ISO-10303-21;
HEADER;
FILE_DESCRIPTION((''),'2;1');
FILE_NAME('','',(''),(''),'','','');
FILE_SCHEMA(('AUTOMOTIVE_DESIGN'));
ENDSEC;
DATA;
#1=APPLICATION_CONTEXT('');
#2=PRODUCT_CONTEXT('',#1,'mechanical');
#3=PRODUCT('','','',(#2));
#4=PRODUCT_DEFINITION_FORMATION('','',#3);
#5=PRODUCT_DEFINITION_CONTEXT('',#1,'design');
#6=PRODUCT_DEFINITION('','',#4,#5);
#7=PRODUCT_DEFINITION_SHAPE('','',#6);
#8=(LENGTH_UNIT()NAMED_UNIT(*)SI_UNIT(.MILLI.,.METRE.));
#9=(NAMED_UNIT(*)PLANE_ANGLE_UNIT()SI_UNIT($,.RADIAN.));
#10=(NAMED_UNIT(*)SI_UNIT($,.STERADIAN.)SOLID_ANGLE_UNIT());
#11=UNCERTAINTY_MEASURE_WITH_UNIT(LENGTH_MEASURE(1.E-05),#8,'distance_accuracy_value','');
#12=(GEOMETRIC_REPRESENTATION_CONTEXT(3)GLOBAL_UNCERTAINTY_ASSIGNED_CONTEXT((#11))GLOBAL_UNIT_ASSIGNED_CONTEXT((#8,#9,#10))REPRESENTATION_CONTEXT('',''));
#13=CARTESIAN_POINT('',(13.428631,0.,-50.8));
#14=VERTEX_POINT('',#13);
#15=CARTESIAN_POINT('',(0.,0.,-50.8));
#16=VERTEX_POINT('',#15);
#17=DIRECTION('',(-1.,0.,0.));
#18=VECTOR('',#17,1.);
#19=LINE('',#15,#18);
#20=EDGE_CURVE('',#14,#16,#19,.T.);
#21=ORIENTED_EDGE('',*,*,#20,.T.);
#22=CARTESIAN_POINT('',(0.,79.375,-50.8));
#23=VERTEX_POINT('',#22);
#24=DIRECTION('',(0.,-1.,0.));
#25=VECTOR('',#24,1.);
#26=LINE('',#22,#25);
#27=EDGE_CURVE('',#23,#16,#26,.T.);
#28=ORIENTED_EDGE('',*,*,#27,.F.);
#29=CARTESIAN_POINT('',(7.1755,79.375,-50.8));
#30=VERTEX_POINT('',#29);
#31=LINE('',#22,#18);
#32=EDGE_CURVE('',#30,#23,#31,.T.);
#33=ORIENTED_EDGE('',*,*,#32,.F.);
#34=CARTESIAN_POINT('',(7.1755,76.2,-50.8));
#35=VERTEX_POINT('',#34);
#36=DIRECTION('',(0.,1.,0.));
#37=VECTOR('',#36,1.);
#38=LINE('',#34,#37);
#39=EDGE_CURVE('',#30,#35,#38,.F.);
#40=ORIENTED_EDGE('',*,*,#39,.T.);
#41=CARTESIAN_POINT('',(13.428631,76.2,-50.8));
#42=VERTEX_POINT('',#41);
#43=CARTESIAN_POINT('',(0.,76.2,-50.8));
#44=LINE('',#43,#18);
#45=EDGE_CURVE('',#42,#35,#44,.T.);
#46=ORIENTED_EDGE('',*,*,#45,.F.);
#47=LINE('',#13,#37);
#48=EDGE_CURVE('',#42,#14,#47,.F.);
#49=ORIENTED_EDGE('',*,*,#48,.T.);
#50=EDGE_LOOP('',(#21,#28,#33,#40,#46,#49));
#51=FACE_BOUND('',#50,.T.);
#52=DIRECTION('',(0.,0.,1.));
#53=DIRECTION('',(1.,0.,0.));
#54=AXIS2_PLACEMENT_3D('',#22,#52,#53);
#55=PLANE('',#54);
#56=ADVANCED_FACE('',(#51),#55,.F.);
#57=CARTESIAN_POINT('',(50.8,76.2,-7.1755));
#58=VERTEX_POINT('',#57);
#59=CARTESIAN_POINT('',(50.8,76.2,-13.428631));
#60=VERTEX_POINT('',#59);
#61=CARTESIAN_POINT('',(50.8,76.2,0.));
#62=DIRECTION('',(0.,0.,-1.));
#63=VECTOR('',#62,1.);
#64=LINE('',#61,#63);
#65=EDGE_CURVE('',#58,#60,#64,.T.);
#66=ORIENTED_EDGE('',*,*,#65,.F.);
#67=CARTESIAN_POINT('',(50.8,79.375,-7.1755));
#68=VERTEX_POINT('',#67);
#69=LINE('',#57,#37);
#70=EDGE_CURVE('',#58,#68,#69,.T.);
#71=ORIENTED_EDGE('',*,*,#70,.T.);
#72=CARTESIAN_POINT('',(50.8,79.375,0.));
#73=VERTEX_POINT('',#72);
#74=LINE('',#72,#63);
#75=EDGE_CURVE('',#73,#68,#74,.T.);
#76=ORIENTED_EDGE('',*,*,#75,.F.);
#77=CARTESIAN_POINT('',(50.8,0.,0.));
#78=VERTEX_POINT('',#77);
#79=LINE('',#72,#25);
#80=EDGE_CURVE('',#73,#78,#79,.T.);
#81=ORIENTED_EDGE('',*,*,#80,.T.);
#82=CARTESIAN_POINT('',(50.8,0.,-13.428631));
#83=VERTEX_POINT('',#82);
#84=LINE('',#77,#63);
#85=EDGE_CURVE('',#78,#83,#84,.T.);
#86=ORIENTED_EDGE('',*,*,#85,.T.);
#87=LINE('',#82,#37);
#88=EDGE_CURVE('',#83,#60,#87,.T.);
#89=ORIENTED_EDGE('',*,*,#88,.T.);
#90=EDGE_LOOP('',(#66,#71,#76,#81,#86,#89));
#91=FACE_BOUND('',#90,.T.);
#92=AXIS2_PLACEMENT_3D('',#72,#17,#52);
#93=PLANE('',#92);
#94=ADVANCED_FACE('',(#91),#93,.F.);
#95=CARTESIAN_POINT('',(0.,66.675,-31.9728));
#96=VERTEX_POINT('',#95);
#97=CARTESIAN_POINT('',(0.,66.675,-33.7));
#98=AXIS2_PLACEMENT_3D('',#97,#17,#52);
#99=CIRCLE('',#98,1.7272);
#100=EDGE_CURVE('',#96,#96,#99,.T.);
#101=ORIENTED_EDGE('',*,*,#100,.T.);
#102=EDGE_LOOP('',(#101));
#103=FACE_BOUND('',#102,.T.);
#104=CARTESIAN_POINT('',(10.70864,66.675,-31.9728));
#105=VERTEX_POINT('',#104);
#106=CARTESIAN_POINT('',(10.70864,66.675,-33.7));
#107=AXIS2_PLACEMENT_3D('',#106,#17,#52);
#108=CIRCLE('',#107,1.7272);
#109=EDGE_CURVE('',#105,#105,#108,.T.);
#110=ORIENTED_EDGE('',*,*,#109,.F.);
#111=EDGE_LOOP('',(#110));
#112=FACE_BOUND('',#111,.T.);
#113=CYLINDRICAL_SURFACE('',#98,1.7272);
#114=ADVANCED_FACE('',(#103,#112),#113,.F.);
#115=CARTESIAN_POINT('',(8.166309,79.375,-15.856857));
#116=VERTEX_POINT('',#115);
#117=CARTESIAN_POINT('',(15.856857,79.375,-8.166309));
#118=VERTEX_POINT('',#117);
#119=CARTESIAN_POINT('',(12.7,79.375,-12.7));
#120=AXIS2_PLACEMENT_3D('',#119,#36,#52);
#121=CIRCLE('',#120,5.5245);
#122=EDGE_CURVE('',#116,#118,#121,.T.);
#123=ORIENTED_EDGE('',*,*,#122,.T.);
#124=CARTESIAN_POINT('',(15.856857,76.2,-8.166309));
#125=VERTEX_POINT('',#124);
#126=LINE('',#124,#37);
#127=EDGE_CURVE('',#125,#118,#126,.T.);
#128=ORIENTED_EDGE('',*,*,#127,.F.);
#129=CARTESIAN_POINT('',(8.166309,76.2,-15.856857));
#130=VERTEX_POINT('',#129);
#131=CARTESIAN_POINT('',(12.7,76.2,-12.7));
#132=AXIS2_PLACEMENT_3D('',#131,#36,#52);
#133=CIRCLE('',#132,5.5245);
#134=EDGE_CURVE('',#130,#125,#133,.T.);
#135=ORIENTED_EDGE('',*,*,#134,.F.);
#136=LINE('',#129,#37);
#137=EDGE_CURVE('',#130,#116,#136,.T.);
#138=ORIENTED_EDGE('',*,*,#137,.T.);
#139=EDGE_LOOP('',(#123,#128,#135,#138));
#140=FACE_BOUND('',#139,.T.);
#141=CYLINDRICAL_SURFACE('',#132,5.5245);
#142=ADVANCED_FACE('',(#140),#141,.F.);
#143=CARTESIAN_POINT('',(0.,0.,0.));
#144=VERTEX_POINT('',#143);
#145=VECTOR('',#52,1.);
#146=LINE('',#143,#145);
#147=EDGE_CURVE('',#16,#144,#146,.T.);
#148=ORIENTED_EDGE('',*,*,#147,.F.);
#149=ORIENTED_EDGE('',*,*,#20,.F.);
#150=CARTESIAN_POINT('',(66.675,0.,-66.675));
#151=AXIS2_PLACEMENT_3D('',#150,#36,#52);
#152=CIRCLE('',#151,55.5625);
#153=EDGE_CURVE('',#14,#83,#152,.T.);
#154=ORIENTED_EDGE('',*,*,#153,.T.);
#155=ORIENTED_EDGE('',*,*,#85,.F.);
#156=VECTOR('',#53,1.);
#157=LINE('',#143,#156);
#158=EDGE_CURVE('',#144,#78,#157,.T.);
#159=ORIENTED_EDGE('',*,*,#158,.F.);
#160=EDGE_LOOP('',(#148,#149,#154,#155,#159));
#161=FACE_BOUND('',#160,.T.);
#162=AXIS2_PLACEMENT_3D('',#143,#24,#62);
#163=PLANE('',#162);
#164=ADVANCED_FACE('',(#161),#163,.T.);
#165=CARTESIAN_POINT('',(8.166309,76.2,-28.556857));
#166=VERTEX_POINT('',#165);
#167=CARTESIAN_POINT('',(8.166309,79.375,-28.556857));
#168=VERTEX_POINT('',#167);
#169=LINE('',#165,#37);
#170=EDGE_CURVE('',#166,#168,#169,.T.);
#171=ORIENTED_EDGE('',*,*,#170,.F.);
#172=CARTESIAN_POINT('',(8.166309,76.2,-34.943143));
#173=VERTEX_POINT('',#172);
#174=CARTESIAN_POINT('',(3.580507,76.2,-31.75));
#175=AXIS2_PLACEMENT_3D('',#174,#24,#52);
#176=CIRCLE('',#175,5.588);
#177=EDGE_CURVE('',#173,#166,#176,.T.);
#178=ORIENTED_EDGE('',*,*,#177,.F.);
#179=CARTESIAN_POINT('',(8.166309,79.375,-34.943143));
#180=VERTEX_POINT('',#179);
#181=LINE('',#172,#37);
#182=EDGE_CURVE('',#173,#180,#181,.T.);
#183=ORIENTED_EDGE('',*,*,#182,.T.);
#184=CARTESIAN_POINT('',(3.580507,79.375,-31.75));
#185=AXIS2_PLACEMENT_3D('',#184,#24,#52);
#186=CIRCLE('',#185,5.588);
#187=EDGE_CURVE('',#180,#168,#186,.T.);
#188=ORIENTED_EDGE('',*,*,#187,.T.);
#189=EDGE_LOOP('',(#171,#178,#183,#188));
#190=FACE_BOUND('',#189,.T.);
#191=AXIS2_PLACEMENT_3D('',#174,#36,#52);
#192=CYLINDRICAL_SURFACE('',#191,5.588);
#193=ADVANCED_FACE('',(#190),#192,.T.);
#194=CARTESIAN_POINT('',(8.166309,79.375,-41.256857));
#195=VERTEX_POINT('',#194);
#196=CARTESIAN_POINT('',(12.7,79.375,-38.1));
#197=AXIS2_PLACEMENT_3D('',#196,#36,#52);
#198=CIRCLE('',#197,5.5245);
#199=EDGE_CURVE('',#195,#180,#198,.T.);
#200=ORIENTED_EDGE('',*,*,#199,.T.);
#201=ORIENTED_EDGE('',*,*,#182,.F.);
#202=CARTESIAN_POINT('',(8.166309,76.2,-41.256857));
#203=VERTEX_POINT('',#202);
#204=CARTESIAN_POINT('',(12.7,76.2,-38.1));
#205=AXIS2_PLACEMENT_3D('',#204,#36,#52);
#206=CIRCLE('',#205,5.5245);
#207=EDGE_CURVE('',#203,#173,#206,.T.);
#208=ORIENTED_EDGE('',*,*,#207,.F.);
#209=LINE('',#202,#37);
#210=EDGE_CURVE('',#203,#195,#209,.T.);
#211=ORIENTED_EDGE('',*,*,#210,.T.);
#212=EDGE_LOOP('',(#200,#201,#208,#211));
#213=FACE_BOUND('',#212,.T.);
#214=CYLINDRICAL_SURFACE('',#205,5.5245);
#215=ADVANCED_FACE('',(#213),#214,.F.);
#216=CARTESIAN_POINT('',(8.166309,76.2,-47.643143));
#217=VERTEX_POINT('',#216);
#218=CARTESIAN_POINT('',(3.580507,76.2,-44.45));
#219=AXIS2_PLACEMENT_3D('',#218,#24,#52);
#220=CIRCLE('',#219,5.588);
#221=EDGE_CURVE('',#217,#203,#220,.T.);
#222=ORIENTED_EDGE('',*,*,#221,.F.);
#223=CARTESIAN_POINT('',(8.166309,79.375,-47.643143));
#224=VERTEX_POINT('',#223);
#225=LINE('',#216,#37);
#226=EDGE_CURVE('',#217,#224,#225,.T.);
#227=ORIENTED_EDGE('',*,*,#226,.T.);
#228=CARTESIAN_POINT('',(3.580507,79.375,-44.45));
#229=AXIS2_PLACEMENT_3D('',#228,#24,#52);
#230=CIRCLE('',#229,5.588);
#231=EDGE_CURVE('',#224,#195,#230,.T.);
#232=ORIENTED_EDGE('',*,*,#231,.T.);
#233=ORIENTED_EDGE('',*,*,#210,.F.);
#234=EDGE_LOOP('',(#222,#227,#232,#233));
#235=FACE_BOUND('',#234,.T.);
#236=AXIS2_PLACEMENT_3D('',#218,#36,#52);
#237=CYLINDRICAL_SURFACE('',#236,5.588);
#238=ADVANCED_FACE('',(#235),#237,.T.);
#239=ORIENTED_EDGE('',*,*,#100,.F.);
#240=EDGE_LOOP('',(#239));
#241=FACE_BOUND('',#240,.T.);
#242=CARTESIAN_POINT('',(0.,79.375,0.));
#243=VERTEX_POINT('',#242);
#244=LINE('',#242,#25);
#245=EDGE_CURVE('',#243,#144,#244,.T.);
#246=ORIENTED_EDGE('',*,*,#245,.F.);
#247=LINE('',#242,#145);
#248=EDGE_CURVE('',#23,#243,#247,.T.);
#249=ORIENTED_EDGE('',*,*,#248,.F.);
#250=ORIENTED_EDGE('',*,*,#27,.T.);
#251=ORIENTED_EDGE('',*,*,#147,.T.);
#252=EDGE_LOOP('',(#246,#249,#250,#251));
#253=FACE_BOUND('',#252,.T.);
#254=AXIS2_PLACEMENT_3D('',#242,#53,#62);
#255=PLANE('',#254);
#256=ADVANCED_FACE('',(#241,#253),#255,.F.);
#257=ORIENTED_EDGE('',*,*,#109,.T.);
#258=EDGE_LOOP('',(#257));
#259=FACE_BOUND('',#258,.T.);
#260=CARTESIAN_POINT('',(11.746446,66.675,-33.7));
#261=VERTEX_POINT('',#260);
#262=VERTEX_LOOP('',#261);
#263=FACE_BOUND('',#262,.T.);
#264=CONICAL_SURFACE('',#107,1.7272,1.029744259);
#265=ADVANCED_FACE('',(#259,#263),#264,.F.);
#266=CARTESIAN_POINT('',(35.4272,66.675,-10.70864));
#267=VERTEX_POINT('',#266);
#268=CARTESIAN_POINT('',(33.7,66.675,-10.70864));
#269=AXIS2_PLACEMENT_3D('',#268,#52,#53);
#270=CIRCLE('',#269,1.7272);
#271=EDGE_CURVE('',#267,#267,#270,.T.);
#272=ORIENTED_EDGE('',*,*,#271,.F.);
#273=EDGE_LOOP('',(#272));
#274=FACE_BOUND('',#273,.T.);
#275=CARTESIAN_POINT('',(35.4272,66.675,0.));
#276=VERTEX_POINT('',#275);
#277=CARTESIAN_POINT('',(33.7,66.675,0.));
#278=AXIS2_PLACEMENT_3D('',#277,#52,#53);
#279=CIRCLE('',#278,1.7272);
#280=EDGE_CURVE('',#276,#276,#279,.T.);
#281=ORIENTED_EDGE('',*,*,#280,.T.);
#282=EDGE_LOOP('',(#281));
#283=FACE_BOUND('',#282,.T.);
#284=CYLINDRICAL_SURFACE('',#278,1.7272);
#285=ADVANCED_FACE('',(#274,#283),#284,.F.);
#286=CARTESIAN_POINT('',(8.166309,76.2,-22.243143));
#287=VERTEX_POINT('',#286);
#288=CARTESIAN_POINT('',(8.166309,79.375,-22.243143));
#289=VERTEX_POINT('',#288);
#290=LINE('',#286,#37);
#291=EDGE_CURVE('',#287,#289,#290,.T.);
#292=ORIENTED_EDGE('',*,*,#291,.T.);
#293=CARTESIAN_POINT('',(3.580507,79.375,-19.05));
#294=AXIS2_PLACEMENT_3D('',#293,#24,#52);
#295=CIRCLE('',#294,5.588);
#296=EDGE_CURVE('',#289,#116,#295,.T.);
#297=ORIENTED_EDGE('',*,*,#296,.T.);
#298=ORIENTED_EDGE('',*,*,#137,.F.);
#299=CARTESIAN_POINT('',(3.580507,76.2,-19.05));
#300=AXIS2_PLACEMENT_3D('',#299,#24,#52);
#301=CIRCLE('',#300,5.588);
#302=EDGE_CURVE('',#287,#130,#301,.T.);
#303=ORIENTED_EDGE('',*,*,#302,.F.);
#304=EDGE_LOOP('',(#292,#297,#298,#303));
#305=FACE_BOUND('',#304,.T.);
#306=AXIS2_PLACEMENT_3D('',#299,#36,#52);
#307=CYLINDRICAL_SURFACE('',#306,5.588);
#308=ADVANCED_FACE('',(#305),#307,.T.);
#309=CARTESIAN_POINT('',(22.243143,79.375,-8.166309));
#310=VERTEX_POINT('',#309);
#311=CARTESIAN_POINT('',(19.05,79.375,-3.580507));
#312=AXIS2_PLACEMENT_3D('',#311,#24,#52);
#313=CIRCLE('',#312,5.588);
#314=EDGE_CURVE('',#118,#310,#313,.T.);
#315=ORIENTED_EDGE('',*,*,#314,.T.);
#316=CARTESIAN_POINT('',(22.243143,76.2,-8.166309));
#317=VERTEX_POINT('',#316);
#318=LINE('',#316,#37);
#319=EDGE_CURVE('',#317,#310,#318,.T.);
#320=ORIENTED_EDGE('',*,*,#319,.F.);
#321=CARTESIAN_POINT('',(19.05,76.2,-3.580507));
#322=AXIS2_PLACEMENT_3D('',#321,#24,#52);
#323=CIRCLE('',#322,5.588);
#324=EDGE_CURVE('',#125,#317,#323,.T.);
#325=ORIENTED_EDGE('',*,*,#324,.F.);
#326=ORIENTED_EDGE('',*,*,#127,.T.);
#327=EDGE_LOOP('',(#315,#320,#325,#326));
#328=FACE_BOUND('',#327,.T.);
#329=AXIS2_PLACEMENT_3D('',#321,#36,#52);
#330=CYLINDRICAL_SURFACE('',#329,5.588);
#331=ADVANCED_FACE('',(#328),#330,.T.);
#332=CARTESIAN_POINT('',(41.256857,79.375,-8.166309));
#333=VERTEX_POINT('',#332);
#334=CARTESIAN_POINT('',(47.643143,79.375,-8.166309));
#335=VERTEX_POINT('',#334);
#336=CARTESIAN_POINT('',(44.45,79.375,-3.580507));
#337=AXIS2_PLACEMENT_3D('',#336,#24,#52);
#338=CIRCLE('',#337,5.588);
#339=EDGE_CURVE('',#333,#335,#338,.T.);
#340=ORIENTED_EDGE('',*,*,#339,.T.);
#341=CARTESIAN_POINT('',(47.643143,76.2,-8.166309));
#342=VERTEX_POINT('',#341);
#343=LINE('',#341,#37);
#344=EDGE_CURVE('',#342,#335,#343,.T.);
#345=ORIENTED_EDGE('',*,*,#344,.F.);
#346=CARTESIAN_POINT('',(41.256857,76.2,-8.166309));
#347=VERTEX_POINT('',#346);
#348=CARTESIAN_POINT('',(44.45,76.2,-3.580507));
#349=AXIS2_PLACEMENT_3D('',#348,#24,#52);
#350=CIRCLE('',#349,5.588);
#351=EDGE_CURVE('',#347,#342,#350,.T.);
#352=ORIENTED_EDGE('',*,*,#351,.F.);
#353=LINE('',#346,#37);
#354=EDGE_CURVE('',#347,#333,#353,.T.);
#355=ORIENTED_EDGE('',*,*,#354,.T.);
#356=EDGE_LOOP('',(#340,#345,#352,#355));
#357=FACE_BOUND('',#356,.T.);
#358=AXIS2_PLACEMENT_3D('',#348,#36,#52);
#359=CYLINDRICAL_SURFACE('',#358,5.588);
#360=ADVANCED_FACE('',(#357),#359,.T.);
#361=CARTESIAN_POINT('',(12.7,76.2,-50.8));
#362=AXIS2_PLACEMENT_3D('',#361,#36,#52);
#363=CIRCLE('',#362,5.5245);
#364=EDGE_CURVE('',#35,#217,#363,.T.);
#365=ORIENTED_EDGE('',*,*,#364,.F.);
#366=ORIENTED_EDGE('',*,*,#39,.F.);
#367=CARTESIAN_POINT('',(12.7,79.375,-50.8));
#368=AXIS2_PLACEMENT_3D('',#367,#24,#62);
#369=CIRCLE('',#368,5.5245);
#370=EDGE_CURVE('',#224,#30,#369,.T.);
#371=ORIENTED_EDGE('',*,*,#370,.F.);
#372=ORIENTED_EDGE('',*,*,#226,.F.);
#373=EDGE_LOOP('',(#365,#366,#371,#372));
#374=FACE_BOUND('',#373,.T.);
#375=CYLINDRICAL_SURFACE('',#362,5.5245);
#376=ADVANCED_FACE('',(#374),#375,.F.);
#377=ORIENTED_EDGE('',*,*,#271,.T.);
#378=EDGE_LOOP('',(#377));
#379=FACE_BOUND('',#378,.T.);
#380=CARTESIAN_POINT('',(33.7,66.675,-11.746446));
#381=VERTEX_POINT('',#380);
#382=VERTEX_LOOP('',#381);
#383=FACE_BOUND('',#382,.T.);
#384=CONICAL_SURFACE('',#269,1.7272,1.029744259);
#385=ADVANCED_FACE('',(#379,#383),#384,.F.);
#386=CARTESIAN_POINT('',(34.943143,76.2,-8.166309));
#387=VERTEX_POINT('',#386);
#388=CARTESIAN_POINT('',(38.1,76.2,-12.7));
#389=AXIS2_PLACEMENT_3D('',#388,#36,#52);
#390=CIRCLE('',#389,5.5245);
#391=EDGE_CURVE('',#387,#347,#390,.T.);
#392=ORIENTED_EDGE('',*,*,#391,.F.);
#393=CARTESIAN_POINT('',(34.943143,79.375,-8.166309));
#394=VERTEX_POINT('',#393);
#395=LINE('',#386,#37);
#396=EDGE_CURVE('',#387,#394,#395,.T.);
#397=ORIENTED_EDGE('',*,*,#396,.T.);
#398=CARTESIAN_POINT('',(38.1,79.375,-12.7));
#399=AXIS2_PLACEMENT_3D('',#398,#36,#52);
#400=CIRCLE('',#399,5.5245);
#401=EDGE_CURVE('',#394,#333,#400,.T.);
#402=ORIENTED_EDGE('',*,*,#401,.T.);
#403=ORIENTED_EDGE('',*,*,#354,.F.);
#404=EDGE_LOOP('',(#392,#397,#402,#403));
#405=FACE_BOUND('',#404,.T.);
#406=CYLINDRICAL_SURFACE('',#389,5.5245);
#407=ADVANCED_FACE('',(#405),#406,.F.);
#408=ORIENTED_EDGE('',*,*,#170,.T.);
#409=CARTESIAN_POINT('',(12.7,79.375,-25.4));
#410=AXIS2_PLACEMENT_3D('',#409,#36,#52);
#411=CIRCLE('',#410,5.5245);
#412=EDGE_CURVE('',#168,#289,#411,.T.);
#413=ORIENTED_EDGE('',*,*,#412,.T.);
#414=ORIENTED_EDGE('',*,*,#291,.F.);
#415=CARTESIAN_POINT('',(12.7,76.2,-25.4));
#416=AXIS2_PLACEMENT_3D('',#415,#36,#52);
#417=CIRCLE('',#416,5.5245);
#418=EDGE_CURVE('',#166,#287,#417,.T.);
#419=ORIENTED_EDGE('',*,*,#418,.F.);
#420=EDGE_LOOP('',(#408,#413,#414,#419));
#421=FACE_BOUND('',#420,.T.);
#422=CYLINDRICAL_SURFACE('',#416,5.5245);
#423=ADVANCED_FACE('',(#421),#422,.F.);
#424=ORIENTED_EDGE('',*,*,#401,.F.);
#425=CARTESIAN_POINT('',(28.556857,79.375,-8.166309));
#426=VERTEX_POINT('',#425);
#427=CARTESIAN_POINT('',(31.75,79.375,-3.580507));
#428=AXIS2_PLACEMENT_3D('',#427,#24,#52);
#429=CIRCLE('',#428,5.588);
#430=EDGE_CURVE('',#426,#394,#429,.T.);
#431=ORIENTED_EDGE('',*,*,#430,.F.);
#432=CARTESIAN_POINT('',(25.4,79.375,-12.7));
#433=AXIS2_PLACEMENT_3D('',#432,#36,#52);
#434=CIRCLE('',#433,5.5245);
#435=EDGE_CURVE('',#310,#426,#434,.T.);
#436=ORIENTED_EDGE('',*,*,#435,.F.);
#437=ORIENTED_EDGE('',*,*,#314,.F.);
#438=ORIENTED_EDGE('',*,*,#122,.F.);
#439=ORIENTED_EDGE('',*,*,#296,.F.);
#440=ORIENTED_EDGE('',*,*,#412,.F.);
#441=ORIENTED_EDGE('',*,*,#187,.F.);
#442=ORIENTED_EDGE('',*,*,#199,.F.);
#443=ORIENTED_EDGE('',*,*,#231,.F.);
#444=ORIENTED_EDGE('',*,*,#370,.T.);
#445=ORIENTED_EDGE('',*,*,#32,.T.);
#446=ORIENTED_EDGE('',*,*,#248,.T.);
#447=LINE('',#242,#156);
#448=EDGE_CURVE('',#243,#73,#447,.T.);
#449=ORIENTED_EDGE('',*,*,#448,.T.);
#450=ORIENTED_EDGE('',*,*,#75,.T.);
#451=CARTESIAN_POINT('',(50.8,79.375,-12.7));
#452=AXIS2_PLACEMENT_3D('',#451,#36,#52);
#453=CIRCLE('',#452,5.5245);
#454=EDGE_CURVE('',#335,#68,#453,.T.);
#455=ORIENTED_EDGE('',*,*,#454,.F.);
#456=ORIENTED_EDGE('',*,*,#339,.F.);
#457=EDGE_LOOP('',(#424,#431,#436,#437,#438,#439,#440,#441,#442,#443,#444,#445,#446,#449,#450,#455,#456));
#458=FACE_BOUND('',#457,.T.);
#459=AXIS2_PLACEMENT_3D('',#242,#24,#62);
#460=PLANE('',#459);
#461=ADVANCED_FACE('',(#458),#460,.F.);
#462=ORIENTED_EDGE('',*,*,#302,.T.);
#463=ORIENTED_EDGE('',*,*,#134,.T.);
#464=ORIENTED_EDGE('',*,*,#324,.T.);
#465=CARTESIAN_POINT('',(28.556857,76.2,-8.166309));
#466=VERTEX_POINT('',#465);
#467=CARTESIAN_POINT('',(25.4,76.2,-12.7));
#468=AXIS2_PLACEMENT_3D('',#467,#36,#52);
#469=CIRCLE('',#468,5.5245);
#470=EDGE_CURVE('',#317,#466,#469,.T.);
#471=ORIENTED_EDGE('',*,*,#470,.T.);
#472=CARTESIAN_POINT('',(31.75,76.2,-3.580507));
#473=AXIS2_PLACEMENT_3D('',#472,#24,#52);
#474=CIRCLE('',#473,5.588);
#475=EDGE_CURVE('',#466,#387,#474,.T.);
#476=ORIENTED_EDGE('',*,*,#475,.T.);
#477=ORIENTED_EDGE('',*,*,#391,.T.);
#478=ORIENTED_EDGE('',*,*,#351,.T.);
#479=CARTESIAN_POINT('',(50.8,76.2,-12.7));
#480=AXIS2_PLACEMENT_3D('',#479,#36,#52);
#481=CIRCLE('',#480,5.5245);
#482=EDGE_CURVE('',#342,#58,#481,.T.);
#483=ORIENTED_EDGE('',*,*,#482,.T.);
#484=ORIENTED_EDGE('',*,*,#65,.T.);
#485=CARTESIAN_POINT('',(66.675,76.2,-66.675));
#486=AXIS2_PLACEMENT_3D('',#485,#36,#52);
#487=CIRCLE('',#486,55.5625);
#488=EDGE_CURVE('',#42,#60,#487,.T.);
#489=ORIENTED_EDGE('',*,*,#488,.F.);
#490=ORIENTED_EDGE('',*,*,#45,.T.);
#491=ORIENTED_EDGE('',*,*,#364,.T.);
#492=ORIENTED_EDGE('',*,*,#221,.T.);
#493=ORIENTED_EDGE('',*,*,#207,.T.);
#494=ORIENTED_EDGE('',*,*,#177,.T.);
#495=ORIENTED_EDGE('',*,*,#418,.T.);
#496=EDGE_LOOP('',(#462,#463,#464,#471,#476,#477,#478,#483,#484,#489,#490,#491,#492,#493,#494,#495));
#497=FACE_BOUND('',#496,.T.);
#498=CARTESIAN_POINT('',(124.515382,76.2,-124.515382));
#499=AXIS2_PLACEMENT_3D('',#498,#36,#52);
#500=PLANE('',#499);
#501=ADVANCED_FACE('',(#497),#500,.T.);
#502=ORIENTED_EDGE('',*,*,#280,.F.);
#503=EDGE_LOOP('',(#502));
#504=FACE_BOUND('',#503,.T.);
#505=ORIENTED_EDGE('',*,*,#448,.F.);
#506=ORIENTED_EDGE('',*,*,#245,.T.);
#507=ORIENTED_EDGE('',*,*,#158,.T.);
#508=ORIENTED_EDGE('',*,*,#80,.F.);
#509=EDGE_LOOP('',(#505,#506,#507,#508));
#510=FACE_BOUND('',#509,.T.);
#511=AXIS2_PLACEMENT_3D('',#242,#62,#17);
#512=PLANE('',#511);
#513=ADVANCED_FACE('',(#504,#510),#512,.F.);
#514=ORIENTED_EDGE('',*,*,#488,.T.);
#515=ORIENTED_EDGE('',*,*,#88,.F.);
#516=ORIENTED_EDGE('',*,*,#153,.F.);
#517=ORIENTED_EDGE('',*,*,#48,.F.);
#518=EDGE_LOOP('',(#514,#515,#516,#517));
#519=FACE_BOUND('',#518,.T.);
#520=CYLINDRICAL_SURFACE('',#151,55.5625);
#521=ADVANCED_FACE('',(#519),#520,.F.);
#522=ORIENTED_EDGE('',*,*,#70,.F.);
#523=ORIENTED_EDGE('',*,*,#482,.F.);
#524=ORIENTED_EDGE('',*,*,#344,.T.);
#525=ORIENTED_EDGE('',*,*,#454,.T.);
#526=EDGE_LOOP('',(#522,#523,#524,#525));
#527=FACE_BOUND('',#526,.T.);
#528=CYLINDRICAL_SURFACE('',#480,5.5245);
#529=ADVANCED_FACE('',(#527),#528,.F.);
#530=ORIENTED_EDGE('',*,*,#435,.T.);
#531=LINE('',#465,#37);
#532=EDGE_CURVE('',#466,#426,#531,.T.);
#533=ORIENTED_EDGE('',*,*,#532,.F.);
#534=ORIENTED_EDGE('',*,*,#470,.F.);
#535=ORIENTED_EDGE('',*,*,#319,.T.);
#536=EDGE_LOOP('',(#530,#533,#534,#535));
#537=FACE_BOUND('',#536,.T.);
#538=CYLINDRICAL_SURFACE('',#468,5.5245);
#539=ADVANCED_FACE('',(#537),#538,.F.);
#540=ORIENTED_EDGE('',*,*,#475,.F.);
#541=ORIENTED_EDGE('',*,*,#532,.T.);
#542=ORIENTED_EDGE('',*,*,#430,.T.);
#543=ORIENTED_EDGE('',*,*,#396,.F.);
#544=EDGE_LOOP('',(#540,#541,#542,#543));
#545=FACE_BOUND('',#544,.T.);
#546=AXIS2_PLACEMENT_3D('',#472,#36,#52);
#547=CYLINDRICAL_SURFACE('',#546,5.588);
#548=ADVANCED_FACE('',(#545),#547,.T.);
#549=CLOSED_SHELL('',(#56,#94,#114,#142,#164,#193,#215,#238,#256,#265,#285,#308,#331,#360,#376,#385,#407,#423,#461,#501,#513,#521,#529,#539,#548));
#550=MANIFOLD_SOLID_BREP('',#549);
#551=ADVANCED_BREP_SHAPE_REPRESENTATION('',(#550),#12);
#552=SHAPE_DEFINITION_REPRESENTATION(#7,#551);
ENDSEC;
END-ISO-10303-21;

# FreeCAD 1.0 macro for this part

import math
import FreeCAD as App
import Part
import Sketcher
Q = App.Units.Quantity


def add_polygon(sketch, points):
    """Adds a closed chain of lines whose ends are joined by coincident constraints."""
    first, n = sketch.GeometryCount, len(points)
    for a, b in zip(points, points[1:] + points[:1]):
        sketch.addGeometry(Part.LineSegment(App.Vector(*a, 0), App.Vector(*b, 0)), False)
    for i in range(n):
        sketch.addConstraint(Sketcher.Constraint("Coincident", first + i, 2, first + (i + 1) % n, 1))

doc = App.newDocument("Part")
body = doc.addObject("PartDesign::Body", "Body")

# Sketch on XZ plane
sketch1 = doc.addObject("Sketcher::SketchObject", "Sketch")
body.addObject(sketch1)
sketch1.AttachmentSupport = (doc.XZ_Plane, [""])
sketch1.MapMode = "FlatFace"
add_polygon(sketch1, [(0, -51), (0, 0), (51, 0), (51, -51)])  # lines 0-3
sketch1.addConstraint(Sketcher.Constraint("Vertical", 0))
sketch1.addConstraint(Sketcher.Constraint("Horizontal", 1))
sketch1.addConstraint(Sketcher.Constraint("Vertical", 2))
sketch1.addConstraint(Sketcher.Constraint("Horizontal", 3))
sketch1.addConstraint(Sketcher.Constraint("Coincident", 0, 2, -1, 1))
sketch1.addConstraint(Sketcher.Constraint("Equal", 3, 0))
sketch1.addConstraint(Sketcher.Constraint("DistanceX", 1, 1, 1, 2, Q("2 in")))
pad1 = doc.addObject("PartDesign::Pad", "Pad")
body.addObject(pad1)
pad1.Profile = sketch1
pad1.Length = Q("3.125 in")
pad1.Reversed = True

# Sketch on XZ plane
sketch2 = doc.addObject("Sketcher::SketchObject", "Sketch001")
body.addObject(sketch2)
sketch2.AttachmentSupport = (doc.XZ_Plane, [""])
sketch2.MapMode = "FlatFace"
sketch2.AttachmentOffset = App.Placement(App.Vector(0, 0, -3.125 * 25.4), App.Rotation())
sketch2.addGeometry(Part.LineSegment(App.Vector(134.3, -78.6, 0), App.Vector(130, -125, 0)), False)
sketch2.addGeometry(Part.ArcOfCircle(Part.Circle(App.Vector(124.5, -124.5, 0), App.Vector(0, 0, 1), 5.5), math.radians(-78), math.radians(-5)), False)
sketch2.addGeometry(Part.LineSegment(App.Vector(125.6, -129.9, 0), App.Vector(85.3, -138.2, 0)), False)
sketch2.addGeometry(Part.ArcOfCircle(Part.Circle(App.Vector(83.3, -128, 0), App.Vector(0, 0, 1), 10.4), math.radians(-131), math.radians(-78)), False)
sketch2.addGeometry(Part.ArcOfCircle(Part.Circle(App.Vector(56.5, -158.8, 0), App.Vector(0, 0, 1), 30.4), math.radians(49), math.radians(84)), False)
sketch2.addGeometry(Part.ArcOfCircle(Part.Circle(App.Vector(66.7, -66.7, 0), App.Vector(0, 0, 1), 62.3), math.radians(-120), math.radians(-96)), False)
sketch2.addGeometry(Part.ArcOfCircle(Part.Circle(App.Vector(32.7, -125.4, 0), App.Vector(0, 0, 1), 5.6), math.radians(60), math.radians(90)), False)
sketch2.addGeometry(Part.ArcOfCircle(Part.Circle(App.Vector(32.6, -114.3, 0), App.Vector(0, 0, 1), 5.5), math.radians(171), math.radians(270)), False)
sketch2.addGeometry(Part.ArcOfCircle(Part.Circle(App.Vector(19.9, -112.4, 0), App.Vector(0, 0, 1), 7.4), math.radians(-9), math.radians(124)), False)
sketch2.addGeometry(Part.ArcOfCircle(Part.Circle(App.Vector(12.7, -101.6, 0), App.Vector(0, 0, 1), 5.5), math.radians(145), math.radians(304)), False)
sketch2.addGeometry(Part.ArcOfCircle(Part.Circle(App.Vector(3.6, -95.2, 0), App.Vector(0, 0, 1), 5.6), math.radians(-35), math.radians(35)), False)
sketch2.addGeometry(Part.ArcOfCircle(Part.Circle(App.Vector(12.7, -88.9, 0), App.Vector(0, 0, 1), 5.5), math.radians(145), math.radians(215)), False)
sketch2.addGeometry(Part.ArcOfCircle(Part.Circle(App.Vector(3.6, -82.5, 0), App.Vector(0, 0, 1), 5.6), math.radians(-35), math.radians(35)), False)
sketch2.addGeometry(Part.ArcOfCircle(Part.Circle(App.Vector(12.7, -76.2, 0), App.Vector(0, 0, 1), 5.5), math.radians(145), math.radians(215)), False)
sketch2.addGeometry(Part.ArcOfCircle(Part.Circle(App.Vector(3.6, -69.9, 0), App.Vector(0, 0, 1), 5.6), math.radians(-35), math.radians(34)), False)
sketch2.addGeometry(Part.ArcOfCircle(Part.Circle(App.Vector(12.9, -63.5, 0), App.Vector(0, 0, 1), 5.7), math.radians(146), math.radians(214)), False)
sketch2.addGeometry(Part.ArcOfCircle(Part.Circle(App.Vector(3.6, -57.1, 0), App.Vector(0, 0, 1), 5.6), math.radians(-34), math.radians(35)), False)
sketch2.addGeometry(Part.ArcOfCircle(Part.Circle(App.Vector(12.7, -50.8, 0), App.Vector(0, 0, 1), 5.5), math.radians(145), math.radians(215)), False)
sketch2.addGeometry(Part.ArcOfCircle(Part.Circle(App.Vector(3.6, -44.5, 0), App.Vector(0, 0, 1), 5.6), math.radians(-35), math.radians(35)), False)
sketch2.addGeometry(Part.ArcOfCircle(Part.Circle(App.Vector(12.7, -38.1, 0), App.Vector(0, 0, 1), 5.5), math.radians(145), math.radians(215)), False)
sketch2.addGeometry(Part.ArcOfCircle(Part.Circle(App.Vector(3.6, -31.8, 0), App.Vector(0, 0, 1), 5.6), math.radians(-35), math.radians(35)), False)
sketch2.addGeometry(Part.ArcOfCircle(Part.Circle(App.Vector(12.7, -25.4, 0), App.Vector(0, 0, 1), 5.5), math.radians(145), math.radians(215)), False)
sketch2.addGeometry(Part.ArcOfCircle(Part.Circle(App.Vector(3.6, -19.1, 0), App.Vector(0, 0, 1), 5.6), math.radians(-35), math.radians(35)), False)
sketch2.addGeometry(Part.ArcOfCircle(Part.Circle(App.Vector(12.7, -12.7, 0), App.Vector(0, 0, 1), 5.5), math.radians(55), math.radians(215)), False)
sketch2.addGeometry(Part.ArcOfCircle(Part.Circle(App.Vector(19.1, -3.6, 0), App.Vector(0, 0, 1), 5.6), math.radians(-125), math.radians(-55)), False)
sketch2.addGeometry(Part.ArcOfCircle(Part.Circle(App.Vector(25.4, -12.7, 0), App.Vector(0, 0, 1), 5.5), math.radians(55), math.radians(125)), False)
sketch2.addGeometry(Part.ArcOfCircle(Part.Circle(App.Vector(31.8, -3.6, 0), App.Vector(0, 0, 1), 5.6), math.radians(-125), math.radians(-55)), False)
sketch2.addGeometry(Part.ArcOfCircle(Part.Circle(App.Vector(38.1, -12.7, 0), App.Vector(0, 0, 1), 5.5), math.radians(55), math.radians(125)), False)
sketch2.addGeometry(Part.ArcOfCircle(Part.Circle(App.Vector(44.5, -3.6, 0), App.Vector(0, 0, 1), 5.6), math.radians(-125), math.radians(-55)), False)
sketch2.addGeometry(Part.ArcOfCircle(Part.Circle(App.Vector(50.8, -12.7, 0), App.Vector(0, 0, 1), 5.5), math.radians(55), math.radians(125)), False)
sketch2.addGeometry(Part.ArcOfCircle(Part.Circle(App.Vector(57.1, -3.6, 0), App.Vector(0, 0, 1), 5.6), math.radians(-125), math.radians(-56)), False)
sketch2.addGeometry(Part.ArcOfCircle(Part.Circle(App.Vector(63.5, -12.9, 0), App.Vector(0, 0, 1), 5.7), math.radians(56), math.radians(124)), False)
sketch2.addGeometry(Part.ArcOfCircle(Part.Circle(App.Vector(69.9, -3.6, 0), App.Vector(0, 0, 1), 5.6), math.radians(-124), math.radians(-55)), False)
sketch2.addGeometry(Part.ArcOfCircle(Part.Circle(App.Vector(76.2, -12.7, 0), App.Vector(0, 0, 1), 5.5), math.radians(55), math.radians(125)), False)
sketch2.addGeometry(Part.ArcOfCircle(Part.Circle(App.Vector(82.5, -3.6, 0), App.Vector(0, 0, 1), 5.6), math.radians(-125), math.radians(-55)), False)
sketch2.addGeometry(Part.ArcOfCircle(Part.Circle(App.Vector(88.9, -12.7, 0), App.Vector(0, 0, 1), 5.5), math.radians(55), math.radians(125)), False)
sketch2.addGeometry(Part.ArcOfCircle(Part.Circle(App.Vector(95.2, -3.6, 0), App.Vector(0, 0, 1), 5.6), math.radians(-125), math.radians(-55)), False)
sketch2.addGeometry(Part.ArcOfCircle(Part.Circle(App.Vector(101.6, -12.7, 0), App.Vector(0, 0, 1), 5.5), math.radians(-34), math.radians(125)), False)
sketch2.addGeometry(Part.ArcOfCircle(Part.Circle(App.Vector(112.4, -19.9, 0), App.Vector(0, 0, 1), 7.4), math.radians(146), math.radians(279)), False)
sketch2.addGeometry(Part.ArcOfCircle(Part.Circle(App.Vector(114.3, -32.6, 0), App.Vector(0, 0, 1), 5.5), math.radians(0), math.radians(99)), False)
sketch2.addGeometry(Part.ArcOfCircle(Part.Circle(App.Vector(125.4, -32.7, 0), App.Vector(0, 0, 1), 5.6), math.radians(180), math.radians(210)), False)
sketch2.addGeometry(Part.ArcOfCircle(Part.Circle(App.Vector(66.7, -66.7, 0), App.Vector(0, 0, 1), 62.3), math.radians(6), math.radians(30)), False)
sketch2.addGeometry(Part.ArcOfCircle(Part.Circle(App.Vector(158.7, -56.5, 0), App.Vector(0, 0, 1), 30.4), math.radians(-174), math.radians(-149)), False)
sketch2.addGeometry(Part.ArcOfCircle(Part.Circle(App.Vector(123.9, -77.6, 0), App.Vector(0, 0, 1), 10.4), math.radians(-5), math.radians(31)), False)
sketch2.addConstraint(Sketcher.Constraint("Tangent", 0, 2, 1, 2))
sketch2.addConstraint(Sketcher.Constraint("Tangent", 1, 1, 2, 1))
sketch2.addConstraint(Sketcher.Constraint("Tangent", 2, 2, 3, 2))
sketch2.addConstraint(Sketcher.Constraint("Tangent", 3, 1, 4, 1))
sketch2.addConstraint(Sketcher.Constraint("Tangent", 4, 2, 5, 2))
sketch2.addConstraint(Sketcher.Constraint("Tangent", 5, 1, 6, 1))
sketch2.addConstraint(Sketcher.Constraint("Tangent", 6, 2, 7, 2))
sketch2.addConstraint(Sketcher.Constraint("Tangent", 7, 1, 8, 1))
sketch2.addConstraint(Sketcher.Constraint("Tangent", 8, 2, 9, 2))
sketch2.addConstraint(Sketcher.Constraint("Tangent", 9, 1, 10, 1))
sketch2.addConstraint(Sketcher.Constraint("Tangent", 10, 2, 11, 2))
sketch2.addConstraint(Sketcher.Constraint("Tangent", 11, 1, 12, 1))
sketch2.addConstraint(Sketcher.Constraint("Tangent", 12, 2, 13, 2))
sketch2.addConstraint(Sketcher.Constraint("Tangent", 13, 1, 14, 1))
sketch2.addConstraint(Sketcher.Constraint("Tangent", 14, 2, 15, 2))
sketch2.addConstraint(Sketcher.Constraint("Tangent", 15, 1, 16, 1))
sketch2.addConstraint(Sketcher.Constraint("Tangent", 16, 2, 17, 2))
sketch2.addConstraint(Sketcher.Constraint("Tangent", 17, 1, 18, 1))
sketch2.addConstraint(Sketcher.Constraint("Tangent", 18, 2, 19, 2))
sketch2.addConstraint(Sketcher.Constraint("Tangent", 19, 1, 20, 1))
sketch2.addConstraint(Sketcher.Constraint("Tangent", 20, 2, 21, 2))
sketch2.addConstraint(Sketcher.Constraint("Tangent", 21, 1, 22, 1))
sketch2.addConstraint(Sketcher.Constraint("Tangent", 22, 2, 23, 2))
sketch2.addConstraint(Sketcher.Constraint("Tangent", 23, 1, 24, 1))
sketch2.addConstraint(Sketcher.Constraint("Tangent", 24, 2, 25, 2))
sketch2.addConstraint(Sketcher.Constraint("Tangent", 25, 1, 26, 1))
sketch2.addConstraint(Sketcher.Constraint("Tangent", 26, 2, 27, 2))
sketch2.addConstraint(Sketcher.Constraint("Tangent", 27, 1, 28, 1))
sketch2.addConstraint(Sketcher.Constraint("Tangent", 28, 2, 29, 2))
sketch2.addConstraint(Sketcher.Constraint("Tangent", 29, 1, 30, 1))
sketch2.addConstraint(Sketcher.Constraint("Tangent", 30, 2, 31, 2))
sketch2.addConstraint(Sketcher.Constraint("Tangent", 31, 1, 32, 1))
sketch2.addConstraint(Sketcher.Constraint("Tangent", 32, 2, 33, 2))
sketch2.addConstraint(Sketcher.Constraint("Tangent", 33, 1, 34, 1))
sketch2.addConstraint(Sketcher.Constraint("Tangent", 34, 2, 35, 2))
sketch2.addConstraint(Sketcher.Constraint("Tangent", 35, 1, 36, 1))
sketch2.addConstraint(Sketcher.Constraint("Tangent", 36, 2, 37, 2))
sketch2.addConstraint(Sketcher.Constraint("Tangent", 37, 1, 38, 1))
sketch2.addConstraint(Sketcher.Constraint("Tangent", 38, 2, 39, 2))
sketch2.addConstraint(Sketcher.Constraint("Tangent", 39, 1, 40, 1))
sketch2.addConstraint(Sketcher.Constraint("Tangent", 40, 2, 41, 2))
sketch2.addConstraint(Sketcher.Constraint("Tangent", 41, 1, 42, 1))
sketch2.addConstraint(Sketcher.Constraint("Tangent", 42, 2, 43, 2))
sketch2.addConstraint(Sketcher.Constraint("Tangent", 43, 1, 0, 1))
sketch2.addConstraint(Sketcher.Constraint("Coincident", 41, 3, 5, 3))
sketch2.addConstraint(Sketcher.Constraint("Equal", 1, 7))
sketch2.addConstraint(Sketcher.Constraint("Equal", 7, 9))
sketch2.addConstraint(Sketcher.Constraint("Equal", 6, 10))
sketch2.addConstraint(Sketcher.Constraint("Equal", 9, 11))
sketch2.addConstraint(Sketcher.Constraint("Equal", 10, 12))
sketch2.addConstraint(Sketcher.Constraint("Equal", 11, 13))
sketch2.addConstraint(Sketcher.Constraint("Equal", 12, 14))
sketch2.addConstraint(Sketcher.Constraint("Equal", 14, 16))
sketch2.addConstraint(Sketcher.Constraint("Equal", 13, 17))
sketch2.addConstraint(Sketcher.Constraint("Equal", 16, 18))
sketch2.addConstraint(Sketcher.Constraint("Equal", 17, 19))
sketch2.addConstraint(Sketcher.Constraint("Equal", 18, 20))
sketch2.addConstraint(Sketcher.Constraint("Equal", 19, 21))
sketch2.addConstraint(Sketcher.Constraint("Equal", 20, 22))
sketch2.addConstraint(Sketcher.Constraint("Equal", 21, 23))
sketch2.addConstraint(Sketcher.Constraint("Equal", 22, 24))
sketch2.addConstraint(Sketcher.Constraint("Equal", 23, 25))
sketch2.addConstraint(Sketcher.Constraint("Equal", 24, 26))
sketch2.addConstraint(Sketcher.Constraint("Equal", 25, 27))
sketch2.addConstraint(Sketcher.Constraint("Equal", 26, 28))
sketch2.addConstraint(Sketcher.Constraint("Equal", 27, 29))
sketch2.addConstraint(Sketcher.Constraint("Equal", 28, 30))
sketch2.addConstraint(Sketcher.Constraint("Equal", 15, 31))
sketch2.addConstraint(Sketcher.Constraint("Equal", 30, 32))
sketch2.addConstraint(Sketcher.Constraint("Equal", 29, 33))
sketch2.addConstraint(Sketcher.Constraint("Equal", 32, 34))
sketch2.addConstraint(Sketcher.Constraint("Equal", 33, 35))
sketch2.addConstraint(Sketcher.Constraint("Equal", 34, 36))
sketch2.addConstraint(Sketcher.Constraint("Equal", 35, 37))
sketch2.addConstraint(Sketcher.Constraint("Equal", 8, 38))
sketch2.addConstraint(Sketcher.Constraint("Equal", 37, 39))
sketch2.addConstraint(Sketcher.Constraint("Equal", 36, 40))
sketch2.addConstraint(Sketcher.Constraint("Equal", 5, 41))
sketch2.addConstraint(Sketcher.Constraint("Equal", 4, 42))
sketch2.addConstraint(Sketcher.Constraint("Equal", 3, 43))
sketch2.addConstraint(Sketcher.Constraint("Horizontal", 23, 3, 25, 3))
sketch2.addConstraint(Sketcher.Constraint("Horizontal", 24, 3, 26, 3))
sketch2.addConstraint(Sketcher.Constraint("Horizontal", 25, 3, 27, 3))
sketch2.addConstraint(Sketcher.Constraint("Horizontal", 26, 3, 28, 3))
sketch2.addConstraint(Sketcher.Constraint("Horizontal", 27, 3, 29, 3))
sketch2.addConstraint(Sketcher.Constraint("Horizontal", 29, 3, 33, 3))
sketch2.addConstraint(Sketcher.Constraint("Horizontal", 28, 3, 34, 3))
sketch2.addConstraint(Sketcher.Constraint("Horizontal", 33, 3, 35, 3))
sketch2.addConstraint(Sketcher.Constraint("Horizontal", 34, 3, 36, 3))
sketch2.addConstraint(Sketcher.Constraint("Horizontal", 35, 3, 37, 3))
sketch2.addConstraint(Sketcher.Constraint("Vertical", 9, 3, 11, 3))
sketch2.addConstraint(Sketcher.Constraint("Vertical", 10, 3, 12, 3))
sketch2.addConstraint(Sketcher.Constraint("Vertical", 11, 3, 13, 3))
sketch2.addConstraint(Sketcher.Constraint("Vertical", 13, 3, 17, 3))
sketch2.addConstraint(Sketcher.Constraint("Vertical", 12, 3, 18, 3))
sketch2.addConstraint(Sketcher.Constraint("Vertical", 17, 3, 19, 3))
sketch2.addConstraint(Sketcher.Constraint("Vertical", 18, 3, 20, 3))
sketch2.addConstraint(Sketcher.Constraint("Vertical", 19, 3, 21, 3))
sketch2.addConstraint(Sketcher.Constraint("Vertical", 20, 3, 22, 3))
sketch2.addConstraint(Sketcher.Constraint("Vertical", 21, 3, 23, 3))
sketch2.addConstraint(Sketcher.Constraint("Radius", 6, Q("0.22 in")))
sketch2.addConstraint(Sketcher.Constraint("DistanceY", 9, 3, -1, 1, Q("4 in")))
sketch2.addConstraint(Sketcher.Constraint("DistanceY", 13, 3, -1, 1, Q("3 in")))
sketch2.addConstraint(Sketcher.Constraint("DistanceY", 17, 3, -1, 1, Q("2 in")))
sketch2.addConstraint(Sketcher.Constraint("DistanceX", -1, 1, 25, 3, Q("1 in")))
sketch2.addConstraint(Sketcher.Constraint("DistanceX", -1, 1, 29, 3, Q("2 in")))
sketch2.addConstraint(Sketcher.Constraint("DistanceX", -1, 1, 33, 3, Q("3 in")))
sketch2.addConstraint(Sketcher.Constraint("Radius", 3, Q("0.408 in")))
sketch2.addConstraint(Sketcher.Constraint("Radius", 4, Q("1.195 in")))
sketch2.addConstraint(Sketcher.Constraint("DistanceY", 7, 3, -1, 1, Q("4.5 in")))
sketch2.addConstraint(Sketcher.Constraint("DistanceX", -1, 1, 39, 3, Q("4.5 in")))
sketch2.addConstraint(Sketcher.Constraint("Radius", 1, Q("0.2175 in")))
sketch2.addConstraint(Sketcher.Constraint("DistanceY", 4, 3, -1, 1, Q("6.25 in")))
sketch2.addConstraint(Sketcher.Constraint("DistanceX", -1, 1, 42, 3, Q("6.25 in")))
sketch2.addConstraint(Sketcher.Constraint("DistanceX", -1, 1, 4, 3, Q("2.225 in")))
sketch2.addConstraint(Sketcher.Constraint("DistanceX", -1, 1, 5, 3, Q("2.625 in")))
sketch2.addConstraint(Sketcher.Constraint("DistanceY", 5, 3, -1, 1, Q("2.625 in")))
sketch2.addConstraint(Sketcher.Constraint("DistanceX", -1, 1, 7, 3, Q("1.285 in")))
sketch2.addConstraint(Sketcher.Constraint("DistanceY", 39, 3, -1, 1, Q("1.285 in")))
sketch2.addConstraint(Sketcher.Constraint("Radius", 15, 5.744422))
sketch2.addConstraint(Sketcher.Constraint("Radius", 8, 7.399004))
sketch2.addConstraint(Sketcher.Constraint("DistanceX", -1, 1, 3, 3, 83.260201))
sketch2.addConstraint(Sketcher.Constraint("DistanceY", 1, 1, -1, 1, 129.926899))
sketch2.addConstraint(Sketcher.Constraint("Distance", 2, 41.122608))
sketch2.addConstraint(Sketcher.Constraint("DistanceX", -1, 1, 14, 3, 3.552419))
sketch2.addConstraint(Sketcher.Constraint("DistanceX", -1, 1, 15, 3, 12.919922))
sketch2.addConstraint(Sketcher.Constraint("DistanceY", 31, 3, -1, 1, 12.919922))
sketch2.addConstraint(Sketcher.Constraint("DistanceX", -1, 1, 32, 3, 69.890529))
sketch2.addConstraint(Sketcher.Constraint("DistanceY", 43, 3, -1, 1, 77.631409))
pocket1 = doc.addObject("PartDesign::Pocket", "Pocket")
body.addObject(pocket1)
pocket1.Profile = sketch2
pocket1.Length = Q("0.125 in")
pocket1.Reversed = True

# Sketch on XZ plane
sketch3 = doc.addObject("Sketcher::SketchObject", "Sketch002")
body.addObject(sketch3)
sketch3.AttachmentSupport = (doc.XZ_Plane, [""])
sketch3.MapMode = "FlatFace"
sketch3.AttachmentOffset = App.Placement(App.Vector(0, 0, -3.125 * 25.4), App.Rotation())
sketch3.addGeometry(Part.Circle(App.Vector(67, -67, 0), App.Vector(0, 0, 1), 56), False)
sketch3.addConstraint(Sketcher.Constraint("Diameter", 0, Q("4.375 in")))
sketch3.addConstraint(Sketcher.Constraint("DistanceX", -1, 1, 0, 3, Q("2.625 in")))
sketch3.addConstraint(Sketcher.Constraint("DistanceY", 0, 3, -1, 1, Q("2.625 in")))
pocket2 = doc.addObject("PartDesign::Pocket", "Pocket001")
body.addObject(pocket2)
pocket2.Profile = sketch3
pocket2.Type = "ThroughAll"
pocket2.Reversed = True

# Sketch on XY plane
sketch4 = doc.addObject("Sketcher::SketchObject", "Sketch003")
body.addObject(sketch4)
sketch4.AttachmentSupport = (doc.XY_Plane, [""])
sketch4.MapMode = "FlatFace"
sketch4.addGeometry(Part.Circle(App.Vector(93.7, 66.7, 0), App.Vector(0, 0, 1), 1.7), False)
sketch4.addGeometry(Part.Circle(App.Vector(153.7, 66.7, 0), App.Vector(0, 0, 1), 1.7), False)
sketch4.addGeometry(Part.Circle(App.Vector(213.7, 66.7, 0), App.Vector(0, 0, 1), 1.7), False)
sketch4.addGeometry(Part.Circle(App.Vector(333.7, 66.7, 0), App.Vector(0, 0, 1), 1.7), False)
sketch4.addGeometry(Part.Circle(App.Vector(393.7, 66.7, 0), App.Vector(0, 0, 1), 1.7), False)
sketch4.addGeometry(Part.Circle(App.Vector(453.7, 66.7, 0), App.Vector(0, 0, 1), 1.7), False)
sketch4.addGeometry(Part.Circle(App.Vector(513.7, 66.7, 0), App.Vector(0, 0, 1), 1.7), False)
sketch4.addGeometry(Part.Circle(App.Vector(573.7, 66.7, 0), App.Vector(0, 0, 1), 1.7), False)
sketch4.addGeometry(Part.Circle(App.Vector(633.7, 66.7, 0), App.Vector(0, 0, 1), 1.7), False)
sketch4.addGeometry(Part.Circle(App.Vector(273.7, 66.7, 0), App.Vector(0, 0, 1), 1.7), False)
sketch4.addGeometry(Part.Circle(App.Vector(33.7, 66.7, 0), App.Vector(0, 0, 1), 1.7), False)
sketch4.addGeometry(Part.Circle(App.Vector(693.7, 66.7, 0), App.Vector(0, 0, 1), 1.7), False)
sketch4.addGeometry(Part.Circle(App.Vector(753.7, 66.7, 0), App.Vector(0, 0, 1), 1.7), False)
sketch4.addConstraint(Sketcher.Constraint("Equal", 0, 1))
sketch4.addConstraint(Sketcher.Constraint("Equal", 1, 2))
sketch4.addConstraint(Sketcher.Constraint("Equal", 2, 3))
sketch4.addConstraint(Sketcher.Constraint("Equal", 3, 4))
sketch4.addConstraint(Sketcher.Constraint("Equal", 4, 5))
sketch4.addConstraint(Sketcher.Constraint("Equal", 5, 6))
sketch4.addConstraint(Sketcher.Constraint("Equal", 6, 7))
sketch4.addConstraint(Sketcher.Constraint("Equal", 7, 8))
sketch4.addConstraint(Sketcher.Constraint("Equal", 8, 9))
sketch4.addConstraint(Sketcher.Constraint("Equal", 9, 10))
sketch4.addConstraint(Sketcher.Constraint("Equal", 10, 11))
sketch4.addConstraint(Sketcher.Constraint("Equal", 11, 12))
sketch4.addConstraint(Sketcher.Constraint("Horizontal", 0, 3, 1, 3))
sketch4.addConstraint(Sketcher.Constraint("Horizontal", 1, 3, 2, 3))
sketch4.addConstraint(Sketcher.Constraint("Horizontal", 2, 3, 3, 3))
sketch4.addConstraint(Sketcher.Constraint("Horizontal", 3, 3, 4, 3))
sketch4.addConstraint(Sketcher.Constraint("Horizontal", 4, 3, 5, 3))
sketch4.addConstraint(Sketcher.Constraint("Horizontal", 5, 3, 6, 3))
sketch4.addConstraint(Sketcher.Constraint("Horizontal", 6, 3, 7, 3))
sketch4.addConstraint(Sketcher.Constraint("Horizontal", 7, 3, 8, 3))
sketch4.addConstraint(Sketcher.Constraint("Horizontal", 8, 3, 9, 3))
sketch4.addConstraint(Sketcher.Constraint("Horizontal", 9, 3, 10, 3))
sketch4.addConstraint(Sketcher.Constraint("Horizontal", 10, 3, 11, 3))
sketch4.addConstraint(Sketcher.Constraint("Horizontal", 11, 3, 12, 3))
sketch4.addConstraint(Sketcher.Constraint("Diameter", 0, Q("0.136 in")))
sketch4.addConstraint(Sketcher.Constraint("DistanceX", -1, 1, 4, 3, Q("15.5 in")))
sketch4.addConstraint(Sketcher.Constraint("DistanceY", -1, 1, 0, 3, Q("2.625 in")))
sketch4.addConstraint(Sketcher.Constraint("DistanceX", -1, 1, 0, 3, 93.7))
sketch4.addConstraint(Sketcher.Constraint("DistanceX", -1, 1, 1, 3, 153.7))
sketch4.addConstraint(Sketcher.Constraint("DistanceX", -1, 1, 2, 3, 213.7))
sketch4.addConstraint(Sketcher.Constraint("DistanceX", -1, 1, 3, 3, 333.7))
sketch4.addConstraint(Sketcher.Constraint("DistanceX", -1, 1, 5, 3, 453.7))
sketch4.addConstraint(Sketcher.Constraint("DistanceX", -1, 1, 6, 3, 513.7))
sketch4.addConstraint(Sketcher.Constraint("DistanceX", -1, 1, 7, 3, 573.7))
sketch4.addConstraint(Sketcher.Constraint("DistanceX", -1, 1, 8, 3, 633.7))
sketch4.addConstraint(Sketcher.Constraint("DistanceX", -1, 1, 9, 3, 273.7))
sketch4.addConstraint(Sketcher.Constraint("DistanceX", -1, 1, 10, 3, 33.7))
sketch4.addConstraint(Sketcher.Constraint("DistanceX", -1, 1, 11, 3, 693.7))
sketch4.addConstraint(Sketcher.Constraint("DistanceX", -1, 1, 12, 3, 753.7))
doc.recompute()
hole = doc.addObject("PartDesign::Hole", "Hole")
body.addObject(hole)
hole.Profile = sketch4
hole.ThreadType = "None"
hole.Diameter = Q("0.136 in")
hole.DepthType = "Dimension"
hole.Depth = Q("0.4216 in")
hole.DrillPoint = "Angled"
hole.DrillPointAngle = 118

# Sketch on YZ plane
sketch5 = doc.addObject("Sketcher::SketchObject", "Sketch004")
body.addObject(sketch5)
sketch5.AttachmentSupport = (doc.YZ_Plane, [""])
sketch5.MapMode = "FlatFace"
sketch5.addGeometry(Part.Circle(App.Vector(66.7, -693.7, 0), App.Vector(0, 0, 1), 1.7), False)
sketch5.addGeometry(Part.Circle(App.Vector(66.7, -633.7, 0), App.Vector(0, 0, 1), 1.7), False)
sketch5.addGeometry(Part.Circle(App.Vector(66.7, -573.7, 0), App.Vector(0, 0, 1), 1.7), False)
sketch5.addGeometry(Part.Circle(App.Vector(66.7, -453.7, 0), App.Vector(0, 0, 1), 1.7), False)
sketch5.addGeometry(Part.Circle(App.Vector(66.7, -393.7, 0), App.Vector(0, 0, 1), 1.7), False)
sketch5.addGeometry(Part.Circle(App.Vector(66.7, -333.7, 0), App.Vector(0, 0, 1), 1.7), False)
sketch5.addGeometry(Part.Circle(App.Vector(66.7, -273.7, 0), App.Vector(0, 0, 1), 1.7), False)
sketch5.addGeometry(Part.Circle(App.Vector(66.7, -213.7, 0), App.Vector(0, 0, 1), 1.7), False)
sketch5.addGeometry(Part.Circle(App.Vector(66.7, -153.7, 0), App.Vector(0, 0, 1), 1.7), False)
sketch5.addGeometry(Part.Circle(App.Vector(66.7, -513.7, 0), App.Vector(0, 0, 1), 1.7), False)
sketch5.addGeometry(Part.Circle(App.Vector(66.7, -753.7, 0), App.Vector(0, 0, 1), 1.7), False)
sketch5.addGeometry(Part.Circle(App.Vector(66.7, -93.7, 0), App.Vector(0, 0, 1), 1.7), False)
sketch5.addGeometry(Part.Circle(App.Vector(66.7, -33.7, 0), App.Vector(0, 0, 1), 1.7), False)
sketch5.addConstraint(Sketcher.Constraint("Equal", 0, 1))
sketch5.addConstraint(Sketcher.Constraint("Equal", 1, 2))
sketch5.addConstraint(Sketcher.Constraint("Equal", 2, 3))
sketch5.addConstraint(Sketcher.Constraint("Equal", 3, 4))
sketch5.addConstraint(Sketcher.Constraint("Equal", 4, 5))
sketch5.addConstraint(Sketcher.Constraint("Equal", 5, 6))
sketch5.addConstraint(Sketcher.Constraint("Equal", 6, 7))
sketch5.addConstraint(Sketcher.Constraint("Equal", 7, 8))
sketch5.addConstraint(Sketcher.Constraint("Equal", 8, 9))
sketch5.addConstraint(Sketcher.Constraint("Equal", 9, 10))
sketch5.addConstraint(Sketcher.Constraint("Equal", 10, 11))
sketch5.addConstraint(Sketcher.Constraint("Equal", 11, 12))
sketch5.addConstraint(Sketcher.Constraint("Vertical", 0, 3, 1, 3))
sketch5.addConstraint(Sketcher.Constraint("Vertical", 1, 3, 2, 3))
sketch5.addConstraint(Sketcher.Constraint("Vertical", 2, 3, 3, 3))
sketch5.addConstraint(Sketcher.Constraint("Vertical", 3, 3, 4, 3))
sketch5.addConstraint(Sketcher.Constraint("Vertical", 4, 3, 5, 3))
sketch5.addConstraint(Sketcher.Constraint("Vertical", 5, 3, 6, 3))
sketch5.addConstraint(Sketcher.Constraint("Vertical", 6, 3, 7, 3))
sketch5.addConstraint(Sketcher.Constraint("Vertical", 7, 3, 8, 3))
sketch5.addConstraint(Sketcher.Constraint("Vertical", 8, 3, 9, 3))
sketch5.addConstraint(Sketcher.Constraint("Vertical", 9, 3, 10, 3))
sketch5.addConstraint(Sketcher.Constraint("Vertical", 10, 3, 11, 3))
sketch5.addConstraint(Sketcher.Constraint("Vertical", 11, 3, 12, 3))
sketch5.addConstraint(Sketcher.Constraint("Diameter", 0, Q("0.136 in")))
sketch5.addConstraint(Sketcher.Constraint("DistanceY", 4, 3, -1, 1, Q("15.5 in")))
sketch5.addConstraint(Sketcher.Constraint("DistanceX", -1, 1, 0, 3, Q("2.625 in")))
sketch5.addConstraint(Sketcher.Constraint("DistanceY", 0, 3, -1, 1, 693.7))
sketch5.addConstraint(Sketcher.Constraint("DistanceY", 1, 3, -1, 1, 633.7))
sketch5.addConstraint(Sketcher.Constraint("DistanceY", 2, 3, -1, 1, 573.7))
sketch5.addConstraint(Sketcher.Constraint("DistanceY", 3, 3, -1, 1, 453.7))
sketch5.addConstraint(Sketcher.Constraint("DistanceY", 5, 3, -1, 1, 333.7))
sketch5.addConstraint(Sketcher.Constraint("DistanceY", 6, 3, -1, 1, 273.7))
sketch5.addConstraint(Sketcher.Constraint("DistanceY", 7, 3, -1, 1, 213.7))
sketch5.addConstraint(Sketcher.Constraint("DistanceY", 8, 3, -1, 1, 153.7))
sketch5.addConstraint(Sketcher.Constraint("DistanceY", 9, 3, -1, 1, 513.7))
sketch5.addConstraint(Sketcher.Constraint("DistanceY", 10, 3, -1, 1, 753.7))
sketch5.addConstraint(Sketcher.Constraint("DistanceY", 11, 3, -1, 1, 93.7))
sketch5.addConstraint(Sketcher.Constraint("DistanceY", 12, 3, -1, 1, 33.7))
doc.recompute()
hole2 = doc.addObject("PartDesign::Hole", "Hole001")
body.addObject(hole2)
hole2.Profile = sketch5
hole2.ThreadType = "None"
hole2.Diameter = Q("0.136 in")
hole2.DepthType = "Dimension"
hole2.Depth = Q("0.4216 in")
hole2.DrillPoint = "Angled"
hole2.DrillPointAngle = 118
hole2.Reversed = True

doc.recompute()
